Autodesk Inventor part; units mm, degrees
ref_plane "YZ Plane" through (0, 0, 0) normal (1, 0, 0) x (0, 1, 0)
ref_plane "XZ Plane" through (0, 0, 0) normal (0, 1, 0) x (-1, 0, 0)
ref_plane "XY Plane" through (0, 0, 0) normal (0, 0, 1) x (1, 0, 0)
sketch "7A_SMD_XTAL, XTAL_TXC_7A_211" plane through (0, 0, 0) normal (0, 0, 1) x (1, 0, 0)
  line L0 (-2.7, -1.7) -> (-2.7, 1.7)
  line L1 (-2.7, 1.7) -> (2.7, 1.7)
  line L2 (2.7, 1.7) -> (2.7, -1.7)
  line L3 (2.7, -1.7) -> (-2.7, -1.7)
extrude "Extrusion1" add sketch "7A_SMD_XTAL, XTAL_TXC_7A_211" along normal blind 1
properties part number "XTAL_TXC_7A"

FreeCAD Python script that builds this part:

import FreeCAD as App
import Part
import Sketcher
from FreeCAD import Vector
Q = App.Units.Quantity


def add_polygon(sketch, points):
    """Adds a closed chain of lines whose ends are joined by coincident constraints."""
    first, n = sketch.GeometryCount, len(points)
    for a, b in zip(points, points[1:] + points[:1]):
        sketch.addGeometry(Part.LineSegment(App.Vector(*a, 0), App.Vector(*b, 0)), False)
    for i in range(n):
        sketch.addConstraint(Sketcher.Constraint("Coincident", first + i, 2, first + (i + 1) % n, 1))

doc = App.newDocument("Part")
body = doc.addObject("PartDesign::Body", "Body")

# Sketch on XY plane
sketch1 = body.newObject("Sketcher::SketchObject", "Sketch")
sketch1.AttachmentSupport = (doc.getObject("XY_Plane"), [""])
sketch1.MapMode = "FlatFace"
add_polygon(sketch1, [(-2.7, 1.7), (-2.7, -1.7), (2.7, -1.7), (2.7, 1.7)])  # lines 0-3
sketch1.addConstraint(Sketcher.Constraint("Vertical", 0))
sketch1.addConstraint(Sketcher.Constraint("Horizontal", 1))
sketch1.addConstraint(Sketcher.Constraint("Vertical", 2))
sketch1.addConstraint(Sketcher.Constraint("Horizontal", 3))
sketch1.addConstraint(Sketcher.Constraint("Symmetric", 0, 2, 2, 2, -1, 1))
sketch1.addConstraint(Sketcher.Constraint("DistanceX", 1, 1, 1, 2, Q("5.4 mm")))
sketch1.addConstraint(Sketcher.Constraint("DistanceY", 0, 2, 0, 1, Q("3.4 mm")))
pad1 = body.newObject("PartDesign::Pad", "Pad")
pad1.Profile = sketch1
pad1.Length = 1

doc.recompute()
